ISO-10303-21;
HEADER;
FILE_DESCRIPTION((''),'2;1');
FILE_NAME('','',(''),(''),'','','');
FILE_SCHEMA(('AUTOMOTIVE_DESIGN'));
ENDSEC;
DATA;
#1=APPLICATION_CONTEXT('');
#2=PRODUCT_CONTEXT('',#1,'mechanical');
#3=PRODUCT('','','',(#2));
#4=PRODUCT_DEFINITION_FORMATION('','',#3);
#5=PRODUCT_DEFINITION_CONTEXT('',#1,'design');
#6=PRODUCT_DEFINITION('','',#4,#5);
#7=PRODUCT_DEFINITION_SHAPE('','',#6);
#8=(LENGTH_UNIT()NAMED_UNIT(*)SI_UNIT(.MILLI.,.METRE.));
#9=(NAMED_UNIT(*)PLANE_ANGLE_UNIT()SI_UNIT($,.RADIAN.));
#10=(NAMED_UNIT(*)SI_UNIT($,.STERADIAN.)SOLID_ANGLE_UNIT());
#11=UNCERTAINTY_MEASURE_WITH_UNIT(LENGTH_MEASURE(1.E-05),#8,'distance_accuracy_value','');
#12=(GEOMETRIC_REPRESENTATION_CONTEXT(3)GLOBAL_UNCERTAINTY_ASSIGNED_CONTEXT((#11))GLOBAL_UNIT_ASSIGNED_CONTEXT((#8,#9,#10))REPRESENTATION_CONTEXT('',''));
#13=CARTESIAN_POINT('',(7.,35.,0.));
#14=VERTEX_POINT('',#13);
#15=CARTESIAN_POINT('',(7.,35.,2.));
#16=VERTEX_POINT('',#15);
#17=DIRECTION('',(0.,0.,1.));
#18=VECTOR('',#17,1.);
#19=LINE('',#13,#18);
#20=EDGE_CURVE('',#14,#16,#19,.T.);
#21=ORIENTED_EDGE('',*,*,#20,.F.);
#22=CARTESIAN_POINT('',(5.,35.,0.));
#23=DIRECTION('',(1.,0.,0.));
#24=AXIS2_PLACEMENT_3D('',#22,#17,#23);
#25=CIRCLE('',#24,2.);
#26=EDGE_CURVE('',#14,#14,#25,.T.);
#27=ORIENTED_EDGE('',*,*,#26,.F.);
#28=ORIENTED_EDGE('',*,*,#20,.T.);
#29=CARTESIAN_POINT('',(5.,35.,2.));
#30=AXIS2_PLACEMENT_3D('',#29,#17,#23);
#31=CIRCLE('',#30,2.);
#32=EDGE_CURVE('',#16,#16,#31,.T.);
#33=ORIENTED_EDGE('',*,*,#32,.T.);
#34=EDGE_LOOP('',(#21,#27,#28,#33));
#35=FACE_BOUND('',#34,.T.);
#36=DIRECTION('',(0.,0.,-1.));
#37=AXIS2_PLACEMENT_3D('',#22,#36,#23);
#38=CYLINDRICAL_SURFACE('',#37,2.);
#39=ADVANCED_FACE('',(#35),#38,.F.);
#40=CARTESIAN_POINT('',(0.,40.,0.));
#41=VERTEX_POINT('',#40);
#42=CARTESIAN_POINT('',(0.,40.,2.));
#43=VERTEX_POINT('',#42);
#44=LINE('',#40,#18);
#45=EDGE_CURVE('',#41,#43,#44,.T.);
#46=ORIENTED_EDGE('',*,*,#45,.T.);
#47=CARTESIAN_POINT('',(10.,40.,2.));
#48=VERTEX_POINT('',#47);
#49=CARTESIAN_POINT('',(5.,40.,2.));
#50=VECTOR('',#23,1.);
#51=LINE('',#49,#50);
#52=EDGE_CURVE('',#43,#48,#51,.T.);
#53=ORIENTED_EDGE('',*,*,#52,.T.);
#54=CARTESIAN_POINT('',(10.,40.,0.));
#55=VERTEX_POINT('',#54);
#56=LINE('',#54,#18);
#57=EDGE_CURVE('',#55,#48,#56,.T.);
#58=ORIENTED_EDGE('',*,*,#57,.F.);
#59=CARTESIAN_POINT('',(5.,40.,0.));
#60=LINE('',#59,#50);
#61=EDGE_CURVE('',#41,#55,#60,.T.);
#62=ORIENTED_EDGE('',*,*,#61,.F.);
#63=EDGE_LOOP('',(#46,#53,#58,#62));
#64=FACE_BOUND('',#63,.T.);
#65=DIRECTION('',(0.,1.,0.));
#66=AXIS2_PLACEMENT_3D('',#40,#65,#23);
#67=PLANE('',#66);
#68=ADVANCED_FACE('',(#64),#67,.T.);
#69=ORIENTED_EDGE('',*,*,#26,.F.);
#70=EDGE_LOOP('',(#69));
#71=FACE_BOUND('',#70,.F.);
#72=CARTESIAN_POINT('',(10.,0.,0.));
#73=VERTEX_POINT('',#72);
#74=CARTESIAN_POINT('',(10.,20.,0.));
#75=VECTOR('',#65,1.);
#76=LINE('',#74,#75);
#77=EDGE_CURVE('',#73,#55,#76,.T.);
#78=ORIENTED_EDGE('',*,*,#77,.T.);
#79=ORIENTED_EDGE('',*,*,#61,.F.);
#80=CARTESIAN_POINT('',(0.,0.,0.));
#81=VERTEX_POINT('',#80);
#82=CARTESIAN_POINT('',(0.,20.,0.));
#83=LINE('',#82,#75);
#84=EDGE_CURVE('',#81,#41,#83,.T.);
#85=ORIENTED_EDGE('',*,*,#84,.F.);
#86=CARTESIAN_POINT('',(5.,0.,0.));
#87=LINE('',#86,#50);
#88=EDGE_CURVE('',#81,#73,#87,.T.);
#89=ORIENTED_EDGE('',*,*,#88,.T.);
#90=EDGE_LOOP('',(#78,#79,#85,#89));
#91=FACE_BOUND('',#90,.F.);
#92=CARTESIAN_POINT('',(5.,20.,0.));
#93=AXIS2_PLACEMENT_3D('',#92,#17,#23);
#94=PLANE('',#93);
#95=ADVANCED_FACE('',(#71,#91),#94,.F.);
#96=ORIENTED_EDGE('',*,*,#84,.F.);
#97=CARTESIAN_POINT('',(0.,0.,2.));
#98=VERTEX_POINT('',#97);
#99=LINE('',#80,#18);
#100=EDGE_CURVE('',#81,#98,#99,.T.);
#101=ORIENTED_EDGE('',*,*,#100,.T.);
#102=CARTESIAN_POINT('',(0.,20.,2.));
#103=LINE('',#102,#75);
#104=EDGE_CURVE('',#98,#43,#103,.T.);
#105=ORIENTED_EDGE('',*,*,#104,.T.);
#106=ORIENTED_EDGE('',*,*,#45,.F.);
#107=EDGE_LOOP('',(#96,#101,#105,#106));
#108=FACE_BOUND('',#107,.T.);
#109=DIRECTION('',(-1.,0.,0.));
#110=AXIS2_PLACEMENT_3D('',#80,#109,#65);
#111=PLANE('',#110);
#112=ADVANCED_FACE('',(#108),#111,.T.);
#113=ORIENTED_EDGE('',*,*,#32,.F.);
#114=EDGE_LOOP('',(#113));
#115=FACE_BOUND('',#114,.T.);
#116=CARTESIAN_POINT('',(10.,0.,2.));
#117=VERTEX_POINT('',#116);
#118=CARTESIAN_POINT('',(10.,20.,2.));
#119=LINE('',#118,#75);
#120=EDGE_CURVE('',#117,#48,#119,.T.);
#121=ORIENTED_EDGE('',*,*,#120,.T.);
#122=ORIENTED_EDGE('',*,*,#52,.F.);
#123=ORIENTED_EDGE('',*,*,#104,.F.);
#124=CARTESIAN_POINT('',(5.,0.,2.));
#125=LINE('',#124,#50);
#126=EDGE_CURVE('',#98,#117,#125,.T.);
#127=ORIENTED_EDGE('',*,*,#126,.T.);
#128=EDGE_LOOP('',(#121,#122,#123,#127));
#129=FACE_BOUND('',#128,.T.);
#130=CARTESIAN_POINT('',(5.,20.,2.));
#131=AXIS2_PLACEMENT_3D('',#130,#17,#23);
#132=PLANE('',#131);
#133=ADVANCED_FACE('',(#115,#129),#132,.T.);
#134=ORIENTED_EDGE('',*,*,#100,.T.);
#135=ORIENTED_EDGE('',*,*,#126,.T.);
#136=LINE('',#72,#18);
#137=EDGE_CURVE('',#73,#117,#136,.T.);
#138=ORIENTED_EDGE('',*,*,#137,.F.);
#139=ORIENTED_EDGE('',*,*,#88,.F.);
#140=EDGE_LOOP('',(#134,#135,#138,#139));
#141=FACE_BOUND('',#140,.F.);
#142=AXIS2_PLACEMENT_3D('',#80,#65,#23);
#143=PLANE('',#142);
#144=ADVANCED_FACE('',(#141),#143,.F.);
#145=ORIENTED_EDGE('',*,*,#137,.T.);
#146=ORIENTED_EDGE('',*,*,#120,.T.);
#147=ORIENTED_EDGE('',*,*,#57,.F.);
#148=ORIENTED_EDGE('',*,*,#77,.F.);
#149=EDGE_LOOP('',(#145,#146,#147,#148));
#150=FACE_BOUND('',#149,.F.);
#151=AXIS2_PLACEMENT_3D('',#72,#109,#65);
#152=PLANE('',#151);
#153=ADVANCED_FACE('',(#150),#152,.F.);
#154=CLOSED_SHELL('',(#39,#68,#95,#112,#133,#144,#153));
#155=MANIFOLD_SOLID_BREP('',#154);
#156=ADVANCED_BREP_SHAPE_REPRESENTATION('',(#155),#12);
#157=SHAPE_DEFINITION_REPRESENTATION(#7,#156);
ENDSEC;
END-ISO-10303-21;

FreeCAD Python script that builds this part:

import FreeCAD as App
import Part
import Sketcher
Q = App.Units.Quantity


def add_polygon(sketch, points):
    """Adds a closed chain of lines whose ends are joined by coincident constraints."""
    first, n = sketch.GeometryCount, len(points)
    for a, b in zip(points, points[1:] + points[:1]):
        sketch.addGeometry(Part.LineSegment(App.Vector(*a, 0), App.Vector(*b, 0)), False)
    for i in range(n):
        sketch.addConstraint(Sketcher.Constraint("Coincident", first + i, 2, first + (i + 1) % n, 1))

doc = App.newDocument("Part")
body = doc.addObject("PartDesign::Body", "Body")

# Sketch on XY plane
sketch1 = body.newObject("Sketcher::SketchObject", "Sketch")
sketch1.AttachmentSupport = (doc.getObject("XY_Plane"), [""])
sketch1.MapMode = "FlatFace"
add_polygon(sketch1, [(0, 40), (0, 0), (10, 0), (10, 40)])  # lines 0-3
sketch1.addGeometry(Part.Circle(App.Vector(5, 35, 0), App.Vector(0, 0, 1), 2), False)  # 4
sketch1.addConstraint([
    Sketcher.Constraint("Vertical", 0),
    Sketcher.Constraint("Horizontal", 1),
    Sketcher.Constraint("Vertical", 2),
    Sketcher.Constraint("Horizontal", 3),
    Sketcher.Constraint("Coincident", 0, 2, -1, 1),
    Sketcher.Constraint("Diameter", 4, Q("4 mm")),
    Sketcher.Constraint("DistanceX", 1, 1, 1, 2, Q("10 mm")),
    Sketcher.Constraint("DistanceY", 0, 2, 0, 1, Q("40 mm")),
    Sketcher.Constraint("DistanceX", -1, 1, 4, 3, Q("5 mm")),
    Sketcher.Constraint("DistanceY", -1, 1, 4, 3, Q("35 mm")),
])
pad1 = body.newObject("PartDesign::Pad", "Pad")
pad1.Profile = sketch1
pad1.Length = 2

doc.recompute()
